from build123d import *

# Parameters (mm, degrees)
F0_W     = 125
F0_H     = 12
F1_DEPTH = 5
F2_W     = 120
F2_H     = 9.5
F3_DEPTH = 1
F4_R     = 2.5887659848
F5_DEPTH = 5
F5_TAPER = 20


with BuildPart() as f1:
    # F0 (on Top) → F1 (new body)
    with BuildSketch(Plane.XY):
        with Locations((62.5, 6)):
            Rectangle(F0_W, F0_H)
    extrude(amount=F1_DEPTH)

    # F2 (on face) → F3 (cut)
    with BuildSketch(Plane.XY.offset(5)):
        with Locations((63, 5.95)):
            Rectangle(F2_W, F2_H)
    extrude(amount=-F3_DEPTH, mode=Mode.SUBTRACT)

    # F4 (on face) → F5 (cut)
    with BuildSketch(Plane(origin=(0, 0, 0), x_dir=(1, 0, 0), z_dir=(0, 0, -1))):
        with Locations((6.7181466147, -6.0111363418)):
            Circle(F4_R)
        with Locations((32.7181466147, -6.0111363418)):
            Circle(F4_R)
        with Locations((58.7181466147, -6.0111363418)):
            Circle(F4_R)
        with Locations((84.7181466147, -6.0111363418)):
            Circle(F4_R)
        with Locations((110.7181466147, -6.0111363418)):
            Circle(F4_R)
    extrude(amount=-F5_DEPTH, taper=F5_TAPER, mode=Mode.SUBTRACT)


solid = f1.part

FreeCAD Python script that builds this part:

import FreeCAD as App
import Part
import Sketcher

V = App.Vector


def add_polygon(sketch, points):
    """Adds a closed chain of lines whose ends are joined by coincident constraints."""
    first, n = sketch.GeometryCount, len(points)
    for a, b in zip(points, points[1:] + points[:1]):
        sketch.addGeometry(Part.LineSegment(App.Vector(*a, 0), App.Vector(*b, 0)), False)
    for i in range(n):
        sketch.addConstraint(Sketcher.Constraint("Coincident", first + i, 2, first + (i + 1) % n, 1))

doc = App.newDocument("Part")
body = doc.addObject("PartDesign::Body", "Body")

sketch1 = body.newObject("Sketcher::SketchObject", "Sketch")
sketch1.AttachmentSupport = (doc.getObject("XY_Plane"), [""])
sketch1.MapMode = "FlatFace"
add_polygon(sketch1, [(0, 12), (0, 0), (125, 0), (125, 12)])
sketch1.addConstraint(Sketcher.Constraint("Vertical", 0))
sketch1.addConstraint(Sketcher.Constraint("Horizontal", 1))
sketch1.addConstraint(Sketcher.Constraint("Vertical", 2))
sketch1.addConstraint(Sketcher.Constraint("Horizontal", 3))
sketch1.addConstraint(Sketcher.Constraint("Coincident", 0, 2, -1, 1))
sketch1.addConstraint(Sketcher.Constraint("DistanceX", 1, 1, 1, 2, 125.0))
sketch1.addConstraint(Sketcher.Constraint("DistanceY", 0, 2, 0, 1, 12.0))
pad1 = body.newObject("PartDesign::Pad", "Pad")
pad1.Profile = sketch1
pad1.Length = 5

sketch2 = body.newObject("Sketcher::SketchObject", "Sketch001")
sketch2.AttachmentSupport = (doc.getObject("XY_Plane"), [""])
sketch2.MapMode = "FlatFace"
sketch2.AttachmentOffset = App.Placement(V(0, 0, 5), App.Rotation())
add_polygon(sketch2, [(3, 11), (3, 1), (123, 1), (123, 11)])
sketch2.addConstraint(Sketcher.Constraint("Vertical", 0))
sketch2.addConstraint(Sketcher.Constraint("Horizontal", 1))
sketch2.addConstraint(Sketcher.Constraint("Vertical", 2))
sketch2.addConstraint(Sketcher.Constraint("Horizontal", 3))
sketch2.addConstraint(Sketcher.Constraint("DistanceX", 1, 1, 1, 2, 120.0))
sketch2.addConstraint(Sketcher.Constraint("DistanceY", 0, 2, 0, 1, 9.5))
sketch2.addConstraint(Sketcher.Constraint("DistanceX", -1, 1, 0, 2, 3.0))
sketch2.addConstraint(Sketcher.Constraint("DistanceY", -1, 1, 0, 2, 1.2))
pocket1 = body.newObject("PartDesign::Pocket", "Pocket")
pocket1.Profile = sketch2
pocket1.Length = 1

sketch3 = body.newObject("Sketcher::SketchObject", "Sketch002")
sketch3.AttachmentSupport = (doc.getObject("XY_Plane"), [""])
sketch3.MapMode = "FlatFace"
sketch3.addGeometry(Part.Circle(V(6.7, 6, 0), V(0, 0, 1), 2.6), False)
sketch3.addGeometry(Part.Circle(V(32.7, 6, 0), V(0, 0, 1), 2.6), False)
sketch3.addGeometry(Part.Circle(V(58.7, 6, 0), V(0, 0, 1), 2.6), False)
sketch3.addGeometry(Part.Circle(V(84.7, 6, 0), V(0, 0, 1), 2.6), False)
sketch3.addGeometry(Part.Circle(V(110.7, 6, 0), V(0, 0, 1), 2.6), False)
sketch3.addConstraint(Sketcher.Constraint("Equal", 0, 1))
sketch3.addConstraint(Sketcher.Constraint("Equal", 1, 2))
sketch3.addConstraint(Sketcher.Constraint("Equal", 2, 3))
sketch3.addConstraint(Sketcher.Constraint("Equal", 3, 4))
sketch3.addConstraint(Sketcher.Constraint("Horizontal", 0, 3, 1, 3))
sketch3.addConstraint(Sketcher.Constraint("Horizontal", 1, 3, 2, 3))
sketch3.addConstraint(Sketcher.Constraint("Horizontal", 2, 3, 3, 3))
sketch3.addConstraint(Sketcher.Constraint("Horizontal", 3, 3, 4, 3))
sketch3.addConstraint(Sketcher.Constraint("DistanceX", 0, 3, 1, 3, 26.0))
sketch3.addConstraint(Sketcher.Constraint("DistanceX", 1, 3, 2, 3, 26.0))
sketch3.addConstraint(Sketcher.Constraint("DistanceX", 2, 3, 3, 3, 26.0))
sketch3.addConstraint(Sketcher.Constraint("DistanceX", 3, 3, 4, 3, 26.0))
sketch3.addConstraint(Sketcher.Constraint("Diameter", 0, 5.177532))
sketch3.addConstraint(Sketcher.Constraint("DistanceX", -1, 1, 0, 3, 6.718147))
sketch3.addConstraint(Sketcher.Constraint("DistanceY", -1, 1, 0, 3, 6.011136))
pocket2 = body.newObject("PartDesign::Pocket", "Pocket001")
pocket2.Profile = sketch3
pocket2.Length = 5
pocket2.Reversed = True
pocket2.TaperAngle = -20

doc.recompute()
